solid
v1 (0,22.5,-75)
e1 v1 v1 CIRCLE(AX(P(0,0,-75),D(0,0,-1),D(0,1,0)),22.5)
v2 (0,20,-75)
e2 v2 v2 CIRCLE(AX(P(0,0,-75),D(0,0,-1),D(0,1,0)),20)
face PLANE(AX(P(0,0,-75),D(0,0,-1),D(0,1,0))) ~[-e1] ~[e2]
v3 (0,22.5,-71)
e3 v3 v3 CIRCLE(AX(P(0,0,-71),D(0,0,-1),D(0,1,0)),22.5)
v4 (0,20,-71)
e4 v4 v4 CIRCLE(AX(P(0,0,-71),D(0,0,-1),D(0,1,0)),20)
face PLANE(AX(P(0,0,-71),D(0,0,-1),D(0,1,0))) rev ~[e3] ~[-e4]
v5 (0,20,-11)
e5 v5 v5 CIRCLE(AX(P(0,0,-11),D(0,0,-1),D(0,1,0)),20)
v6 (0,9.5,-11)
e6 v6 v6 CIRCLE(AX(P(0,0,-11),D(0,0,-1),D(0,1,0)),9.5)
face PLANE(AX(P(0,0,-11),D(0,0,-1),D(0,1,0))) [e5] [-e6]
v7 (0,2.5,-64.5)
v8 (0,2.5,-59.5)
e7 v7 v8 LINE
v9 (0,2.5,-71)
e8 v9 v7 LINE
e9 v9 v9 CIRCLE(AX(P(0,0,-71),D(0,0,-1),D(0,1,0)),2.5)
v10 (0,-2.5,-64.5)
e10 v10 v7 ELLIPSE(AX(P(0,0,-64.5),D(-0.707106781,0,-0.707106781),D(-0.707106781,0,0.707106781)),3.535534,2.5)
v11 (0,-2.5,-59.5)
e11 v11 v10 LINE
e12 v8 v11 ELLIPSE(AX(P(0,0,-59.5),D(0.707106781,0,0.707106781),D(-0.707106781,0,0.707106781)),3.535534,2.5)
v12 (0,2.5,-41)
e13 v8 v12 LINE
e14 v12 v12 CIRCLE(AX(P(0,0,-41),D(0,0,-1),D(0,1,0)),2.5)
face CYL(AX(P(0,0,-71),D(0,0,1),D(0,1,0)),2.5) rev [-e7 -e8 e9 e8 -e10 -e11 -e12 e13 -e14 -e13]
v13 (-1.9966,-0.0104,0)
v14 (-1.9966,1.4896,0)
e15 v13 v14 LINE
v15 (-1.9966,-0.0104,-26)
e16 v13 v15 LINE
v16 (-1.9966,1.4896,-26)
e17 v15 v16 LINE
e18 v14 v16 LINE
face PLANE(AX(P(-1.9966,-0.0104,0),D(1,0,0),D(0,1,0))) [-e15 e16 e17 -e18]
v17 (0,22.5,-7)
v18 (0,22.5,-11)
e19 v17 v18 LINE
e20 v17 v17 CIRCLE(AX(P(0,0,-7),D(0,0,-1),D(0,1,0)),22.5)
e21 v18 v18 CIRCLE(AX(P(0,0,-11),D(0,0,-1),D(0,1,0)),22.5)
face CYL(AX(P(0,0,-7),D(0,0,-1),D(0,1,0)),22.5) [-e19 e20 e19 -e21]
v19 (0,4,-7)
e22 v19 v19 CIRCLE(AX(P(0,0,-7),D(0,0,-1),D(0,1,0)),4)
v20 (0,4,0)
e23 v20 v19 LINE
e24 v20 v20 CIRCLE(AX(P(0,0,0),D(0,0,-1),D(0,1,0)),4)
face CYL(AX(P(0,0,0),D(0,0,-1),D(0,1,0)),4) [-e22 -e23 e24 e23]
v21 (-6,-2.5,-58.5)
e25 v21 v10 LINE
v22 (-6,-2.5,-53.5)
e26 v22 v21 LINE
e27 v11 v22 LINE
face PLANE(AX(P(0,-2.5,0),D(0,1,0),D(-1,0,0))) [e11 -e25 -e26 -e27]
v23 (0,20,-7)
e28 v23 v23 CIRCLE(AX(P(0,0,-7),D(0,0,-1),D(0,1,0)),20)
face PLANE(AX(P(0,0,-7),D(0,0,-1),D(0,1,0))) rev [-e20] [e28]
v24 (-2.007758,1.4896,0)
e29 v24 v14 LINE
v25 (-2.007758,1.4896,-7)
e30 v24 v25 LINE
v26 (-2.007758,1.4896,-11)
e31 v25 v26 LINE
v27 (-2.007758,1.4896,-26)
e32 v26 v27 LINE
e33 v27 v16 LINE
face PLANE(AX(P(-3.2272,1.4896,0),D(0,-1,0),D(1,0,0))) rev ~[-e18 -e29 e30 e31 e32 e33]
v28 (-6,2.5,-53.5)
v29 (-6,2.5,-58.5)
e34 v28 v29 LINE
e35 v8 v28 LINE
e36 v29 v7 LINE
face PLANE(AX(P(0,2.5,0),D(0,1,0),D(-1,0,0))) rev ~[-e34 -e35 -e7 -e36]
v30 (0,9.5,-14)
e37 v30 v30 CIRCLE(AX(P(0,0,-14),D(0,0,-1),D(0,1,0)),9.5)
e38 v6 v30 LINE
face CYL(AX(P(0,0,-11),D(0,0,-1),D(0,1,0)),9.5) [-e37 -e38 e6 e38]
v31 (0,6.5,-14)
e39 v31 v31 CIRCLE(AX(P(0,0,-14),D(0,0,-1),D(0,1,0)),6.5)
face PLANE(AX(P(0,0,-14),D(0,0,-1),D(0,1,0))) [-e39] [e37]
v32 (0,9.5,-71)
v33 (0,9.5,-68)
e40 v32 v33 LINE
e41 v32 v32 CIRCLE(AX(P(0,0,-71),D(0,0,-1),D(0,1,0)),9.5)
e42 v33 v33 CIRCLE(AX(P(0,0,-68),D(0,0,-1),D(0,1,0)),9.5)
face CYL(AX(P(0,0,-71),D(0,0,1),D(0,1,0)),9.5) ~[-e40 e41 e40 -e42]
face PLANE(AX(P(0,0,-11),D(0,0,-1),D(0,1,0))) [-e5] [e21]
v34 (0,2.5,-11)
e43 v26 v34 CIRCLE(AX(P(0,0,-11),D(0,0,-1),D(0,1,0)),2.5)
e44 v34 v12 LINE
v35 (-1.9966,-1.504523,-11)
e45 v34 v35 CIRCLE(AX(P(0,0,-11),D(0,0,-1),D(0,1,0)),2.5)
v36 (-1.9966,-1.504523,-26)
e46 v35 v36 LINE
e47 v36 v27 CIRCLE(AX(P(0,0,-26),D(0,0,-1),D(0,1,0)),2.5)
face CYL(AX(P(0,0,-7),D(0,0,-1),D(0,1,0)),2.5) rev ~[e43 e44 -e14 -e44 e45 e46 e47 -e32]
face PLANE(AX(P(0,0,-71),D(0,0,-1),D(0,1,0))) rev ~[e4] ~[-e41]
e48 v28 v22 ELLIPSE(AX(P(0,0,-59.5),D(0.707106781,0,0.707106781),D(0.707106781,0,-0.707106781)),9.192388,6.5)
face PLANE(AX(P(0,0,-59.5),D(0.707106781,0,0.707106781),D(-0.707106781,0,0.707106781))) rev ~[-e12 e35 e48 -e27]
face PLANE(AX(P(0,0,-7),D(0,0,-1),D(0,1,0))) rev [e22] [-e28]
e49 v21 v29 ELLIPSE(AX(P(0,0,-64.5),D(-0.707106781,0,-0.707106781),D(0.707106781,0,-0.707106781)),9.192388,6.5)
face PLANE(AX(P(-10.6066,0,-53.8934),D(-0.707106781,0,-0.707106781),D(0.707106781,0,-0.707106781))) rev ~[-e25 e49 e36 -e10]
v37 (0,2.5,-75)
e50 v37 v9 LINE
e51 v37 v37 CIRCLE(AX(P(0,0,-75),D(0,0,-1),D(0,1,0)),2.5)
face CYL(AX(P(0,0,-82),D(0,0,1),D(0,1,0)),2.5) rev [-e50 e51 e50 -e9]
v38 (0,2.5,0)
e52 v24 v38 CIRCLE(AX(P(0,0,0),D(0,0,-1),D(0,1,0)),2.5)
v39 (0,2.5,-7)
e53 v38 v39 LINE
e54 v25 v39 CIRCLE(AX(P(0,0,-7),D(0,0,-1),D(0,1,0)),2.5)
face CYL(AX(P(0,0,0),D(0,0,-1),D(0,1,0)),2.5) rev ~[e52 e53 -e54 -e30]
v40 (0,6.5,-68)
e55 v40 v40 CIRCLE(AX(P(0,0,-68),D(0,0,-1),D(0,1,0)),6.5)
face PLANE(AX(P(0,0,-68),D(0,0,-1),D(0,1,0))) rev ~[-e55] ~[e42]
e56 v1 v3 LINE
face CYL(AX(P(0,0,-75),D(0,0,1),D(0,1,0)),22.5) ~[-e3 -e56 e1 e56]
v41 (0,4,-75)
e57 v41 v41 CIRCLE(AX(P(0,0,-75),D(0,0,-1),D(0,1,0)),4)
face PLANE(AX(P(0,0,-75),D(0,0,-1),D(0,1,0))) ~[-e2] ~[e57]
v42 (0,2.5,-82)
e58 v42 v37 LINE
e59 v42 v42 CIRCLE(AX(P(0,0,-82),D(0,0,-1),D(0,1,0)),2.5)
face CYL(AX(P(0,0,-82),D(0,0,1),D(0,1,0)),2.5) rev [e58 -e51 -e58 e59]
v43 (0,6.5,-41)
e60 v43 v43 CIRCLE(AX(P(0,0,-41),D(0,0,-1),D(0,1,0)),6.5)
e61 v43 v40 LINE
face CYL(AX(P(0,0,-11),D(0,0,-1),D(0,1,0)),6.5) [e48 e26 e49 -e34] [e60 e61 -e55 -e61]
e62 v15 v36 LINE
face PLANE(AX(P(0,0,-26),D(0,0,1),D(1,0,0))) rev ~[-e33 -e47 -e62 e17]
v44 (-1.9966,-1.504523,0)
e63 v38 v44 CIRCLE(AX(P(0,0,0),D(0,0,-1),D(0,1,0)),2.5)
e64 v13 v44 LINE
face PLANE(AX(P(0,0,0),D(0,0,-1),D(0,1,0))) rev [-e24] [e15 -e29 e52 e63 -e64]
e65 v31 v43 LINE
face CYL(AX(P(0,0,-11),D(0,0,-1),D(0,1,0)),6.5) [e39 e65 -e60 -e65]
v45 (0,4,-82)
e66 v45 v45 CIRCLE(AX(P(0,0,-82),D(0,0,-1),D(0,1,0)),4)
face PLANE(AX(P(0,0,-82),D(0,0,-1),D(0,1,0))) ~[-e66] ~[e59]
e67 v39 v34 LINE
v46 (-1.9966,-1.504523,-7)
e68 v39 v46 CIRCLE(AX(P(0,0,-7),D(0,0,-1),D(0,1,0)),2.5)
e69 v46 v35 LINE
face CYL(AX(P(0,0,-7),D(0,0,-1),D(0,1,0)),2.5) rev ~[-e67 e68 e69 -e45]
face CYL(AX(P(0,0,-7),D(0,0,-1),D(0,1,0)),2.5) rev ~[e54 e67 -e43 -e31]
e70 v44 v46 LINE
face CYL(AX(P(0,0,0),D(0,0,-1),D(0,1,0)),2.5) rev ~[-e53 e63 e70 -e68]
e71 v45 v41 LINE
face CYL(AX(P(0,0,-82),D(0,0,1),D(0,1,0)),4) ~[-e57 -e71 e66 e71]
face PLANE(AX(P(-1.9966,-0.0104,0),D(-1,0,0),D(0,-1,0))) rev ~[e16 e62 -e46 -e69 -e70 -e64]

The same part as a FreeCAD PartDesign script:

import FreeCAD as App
import Part
import Sketcher

V = App.Vector
Q = App.Units.Quantity


def add_polygon(sketch, points):
    """Adds a closed chain of lines whose ends are joined by coincident constraints."""
    first, n = sketch.GeometryCount, len(points)
    for a, b in zip(points, points[1:] + points[:1]):
        sketch.addGeometry(Part.LineSegment(App.Vector(*a, 0), App.Vector(*b, 0)), False)
    for i in range(n):
        sketch.addConstraint(Sketcher.Constraint("Coincident", first + i, 2, first + (i + 1) % n, 1))

doc = App.newDocument("Part")
params = doc.addObject("Spreadsheet::Sheet", "Params")
for row, (alias, value) in enumerate([
    ("sketch1_width", "3 mm"),
    ("sketch1_height", "7 mm"),
    ("sketch1_height2", "4 mm"),
    ("sketch1_height3", "82 mm"),
    ("revolution_angle", "360 deg"),
    ("sketch2_height", "5 mm"),
    ("sketch2_length", "15 mm"),
    ("pocket1_length", "5 mm"),
    ("sketch3_height", "3 mm"),
    ("pad1_length", "26 mm"),
], start=1):
    params.set(f"A{row}", alias)
    params.set(f"B{row}", "=" + value)
    params.setAlias(f"B{row}", alias)

body = doc.addObject("PartDesign::Body", "Body")

# Sketch on YZ plane
sketch1 = doc.addObject("Sketcher::SketchObject", "Sketch")
body.addObject(sketch1)
sketch1.AttachmentSupport = (doc.YZ_Plane, [""])
sketch1.MapMode = "FlatFace"
add_polygon(sketch1, [(4, 0), (2.5, 0), (2.5, -82), (4, -82), (4, -75), (22.5, -75), (22.5, -71), (9.5, -71), (9.5, -68), (6.5, -68), (6.5, -14), (9.5, -14), (9.5, -11), (22.5, -11), (22.5, -7), (4, -7)])  # lines 0-15
sketch1.addConstraint([
    Sketcher.Constraint("Horizontal", 0),
    Sketcher.Constraint("Vertical", 1),
    Sketcher.Constraint("Horizontal", 2),
    Sketcher.Constraint("Vertical", 3),
    Sketcher.Constraint("Horizontal", 4),
    Sketcher.Constraint("Vertical", 5),
    Sketcher.Constraint("Horizontal", 6),
    Sketcher.Constraint("Vertical", 7),
    Sketcher.Constraint("Horizontal", 8),
    Sketcher.Constraint("Vertical", 9),
    Sketcher.Constraint("Horizontal", 10),
    Sketcher.Constraint("Vertical", 11),
    Sketcher.Constraint("Horizontal", 12),
    Sketcher.Constraint("Vertical", 13),
    Sketcher.Constraint("Horizontal", 14),
    Sketcher.Constraint("Vertical", 15),
    Sketcher.Constraint("PointOnObject", 0, 2, -1),
    Sketcher.Constraint("Vertical", 7, 2, 10, 2),
    Sketcher.Constraint("Vertical", 5, 2, 12, 2),
    Sketcher.Constraint("Vertical", 3, 2, 14, 2),
    Sketcher.Constraint("Equal", 10, 7),
    Sketcher.Constraint("Equal", 7, 11),
    Sketcher.Constraint("Equal", 5, 13),
    Sketcher.Constraint("Equal", 3, 15),
    Sketcher.Constraint("DistanceX", 8, 2, 8, 1, 3.0),
    Sketcher.Constraint("DistanceY", 3, 1, 3, 2, 7.0),
    Sketcher.Constraint("DistanceY", 5, 1, 5, 2, 4.0),
    Sketcher.Constraint("DistanceX", -1, 1, 2, 2, 4.0),
    Sketcher.Constraint("DistanceX", 1, 2, 4, 2, 20.0),
    Sketcher.Constraint("DistanceX", 1, 2, 6, 2, 7.0),
    Sketcher.Constraint("DistanceX", -1, 1, 0, 2, 2.5),
    Sketcher.Constraint("DistanceY", 1, 2, 1, 1, 82.0),
])
sketch1.setExpression("Constraints[40]", "Params.sketch1_width")
sketch1.setExpression("Constraints[41]", "Params.sketch1_height")
sketch1.setExpression("Constraints[42]", "Params.sketch1_height2")
sketch1.setExpression("Constraints[47]", "Params.sketch1_height3")
revolution = doc.addObject("PartDesign::Revolution", "Revolution")
body.addObject(revolution)
revolution.Profile = sketch1
revolution.ReferenceAxis = (sketch1, ["V_Axis"])
revolution.setExpression("Angle", "Params.revolution_angle")

# Sketch on XZ plane
sketch2 = doc.addObject("Sketcher::SketchObject", "Sketch001")
body.addObject(sketch2)
sketch2.AttachmentSupport = (doc.XZ_Plane, [""])
sketch2.MapMode = "FlatFace"
add_polygon(sketch2, [(0, -59.5), (0, -64.5), (-10.6066, -53.8934), (-10.6066, -48.8934)])  # lines 0-3
sketch2.addConstraint([
    Sketcher.Constraint("Vertical", 0),
    Sketcher.Constraint("Vertical", 2),
    Sketcher.Constraint("PointOnObject", 0, 2, -2),
    Sketcher.Constraint("Parallel", 1, 3),
    Sketcher.Constraint("DistanceY", 0, 2, 0, 1, 5.0),
    Sketcher.Constraint("Distance", 1, 15.0),
    Sketcher.Constraint("Angle", 1, Q("135 deg")),
    Sketcher.Constraint("DistanceY", 0, 2, -1, 1, 64.5),
])
sketch2.setExpression("Constraints[8]", "Params.sketch2_height")
sketch2.setExpression("Constraints[9]", "Params.sketch2_length")
pocket1 = doc.addObject("PartDesign::Pocket", "Pocket")
body.addObject(pocket1)
pocket1.Profile = sketch2
pocket1.setExpression("Length", "Params.pocket1_length")
pocket1.Midplane = True

# Sketch on XY plane
sketch3 = doc.addObject("Sketcher::SketchObject", "Sketch002")
body.addObject(sketch3)
sketch3.AttachmentSupport = (doc.XY_Plane, [""])
sketch3.MapMode = "FlatFace"
add_polygon(sketch3, [(-3.2272, -1.5104), (-1.9966, -1.5104), (-1.9966, 1.4896), (-3.2272, 1.4896)])  # lines 0-3
sketch3.addConstraint([
    Sketcher.Constraint("Horizontal", 0),
    Sketcher.Constraint("Vertical", 1),
    Sketcher.Constraint("Horizontal", 2),
    Sketcher.Constraint("Vertical", 3),
    Sketcher.Constraint("DistanceY", 1, 1, 1, 2, 3.0),
    Sketcher.Constraint("DistanceX", 0, 1, 0, 2, 1.2306),
    Sketcher.Constraint("DistanceX", 0, 2, -1, 1, 1.9966),
    Sketcher.Constraint("DistanceY", 0, 2, -1, 1, 1.5104),
])
sketch3.setExpression("Constraints[8]", "Params.sketch3_height")
pad1 = doc.addObject("PartDesign::Pad", "Pad")
body.addObject(pad1)
pad1.Profile = sketch3
pad1.setExpression("Length", "Params.pad1_length")
pad1.Reversed = True

doc.recompute()
